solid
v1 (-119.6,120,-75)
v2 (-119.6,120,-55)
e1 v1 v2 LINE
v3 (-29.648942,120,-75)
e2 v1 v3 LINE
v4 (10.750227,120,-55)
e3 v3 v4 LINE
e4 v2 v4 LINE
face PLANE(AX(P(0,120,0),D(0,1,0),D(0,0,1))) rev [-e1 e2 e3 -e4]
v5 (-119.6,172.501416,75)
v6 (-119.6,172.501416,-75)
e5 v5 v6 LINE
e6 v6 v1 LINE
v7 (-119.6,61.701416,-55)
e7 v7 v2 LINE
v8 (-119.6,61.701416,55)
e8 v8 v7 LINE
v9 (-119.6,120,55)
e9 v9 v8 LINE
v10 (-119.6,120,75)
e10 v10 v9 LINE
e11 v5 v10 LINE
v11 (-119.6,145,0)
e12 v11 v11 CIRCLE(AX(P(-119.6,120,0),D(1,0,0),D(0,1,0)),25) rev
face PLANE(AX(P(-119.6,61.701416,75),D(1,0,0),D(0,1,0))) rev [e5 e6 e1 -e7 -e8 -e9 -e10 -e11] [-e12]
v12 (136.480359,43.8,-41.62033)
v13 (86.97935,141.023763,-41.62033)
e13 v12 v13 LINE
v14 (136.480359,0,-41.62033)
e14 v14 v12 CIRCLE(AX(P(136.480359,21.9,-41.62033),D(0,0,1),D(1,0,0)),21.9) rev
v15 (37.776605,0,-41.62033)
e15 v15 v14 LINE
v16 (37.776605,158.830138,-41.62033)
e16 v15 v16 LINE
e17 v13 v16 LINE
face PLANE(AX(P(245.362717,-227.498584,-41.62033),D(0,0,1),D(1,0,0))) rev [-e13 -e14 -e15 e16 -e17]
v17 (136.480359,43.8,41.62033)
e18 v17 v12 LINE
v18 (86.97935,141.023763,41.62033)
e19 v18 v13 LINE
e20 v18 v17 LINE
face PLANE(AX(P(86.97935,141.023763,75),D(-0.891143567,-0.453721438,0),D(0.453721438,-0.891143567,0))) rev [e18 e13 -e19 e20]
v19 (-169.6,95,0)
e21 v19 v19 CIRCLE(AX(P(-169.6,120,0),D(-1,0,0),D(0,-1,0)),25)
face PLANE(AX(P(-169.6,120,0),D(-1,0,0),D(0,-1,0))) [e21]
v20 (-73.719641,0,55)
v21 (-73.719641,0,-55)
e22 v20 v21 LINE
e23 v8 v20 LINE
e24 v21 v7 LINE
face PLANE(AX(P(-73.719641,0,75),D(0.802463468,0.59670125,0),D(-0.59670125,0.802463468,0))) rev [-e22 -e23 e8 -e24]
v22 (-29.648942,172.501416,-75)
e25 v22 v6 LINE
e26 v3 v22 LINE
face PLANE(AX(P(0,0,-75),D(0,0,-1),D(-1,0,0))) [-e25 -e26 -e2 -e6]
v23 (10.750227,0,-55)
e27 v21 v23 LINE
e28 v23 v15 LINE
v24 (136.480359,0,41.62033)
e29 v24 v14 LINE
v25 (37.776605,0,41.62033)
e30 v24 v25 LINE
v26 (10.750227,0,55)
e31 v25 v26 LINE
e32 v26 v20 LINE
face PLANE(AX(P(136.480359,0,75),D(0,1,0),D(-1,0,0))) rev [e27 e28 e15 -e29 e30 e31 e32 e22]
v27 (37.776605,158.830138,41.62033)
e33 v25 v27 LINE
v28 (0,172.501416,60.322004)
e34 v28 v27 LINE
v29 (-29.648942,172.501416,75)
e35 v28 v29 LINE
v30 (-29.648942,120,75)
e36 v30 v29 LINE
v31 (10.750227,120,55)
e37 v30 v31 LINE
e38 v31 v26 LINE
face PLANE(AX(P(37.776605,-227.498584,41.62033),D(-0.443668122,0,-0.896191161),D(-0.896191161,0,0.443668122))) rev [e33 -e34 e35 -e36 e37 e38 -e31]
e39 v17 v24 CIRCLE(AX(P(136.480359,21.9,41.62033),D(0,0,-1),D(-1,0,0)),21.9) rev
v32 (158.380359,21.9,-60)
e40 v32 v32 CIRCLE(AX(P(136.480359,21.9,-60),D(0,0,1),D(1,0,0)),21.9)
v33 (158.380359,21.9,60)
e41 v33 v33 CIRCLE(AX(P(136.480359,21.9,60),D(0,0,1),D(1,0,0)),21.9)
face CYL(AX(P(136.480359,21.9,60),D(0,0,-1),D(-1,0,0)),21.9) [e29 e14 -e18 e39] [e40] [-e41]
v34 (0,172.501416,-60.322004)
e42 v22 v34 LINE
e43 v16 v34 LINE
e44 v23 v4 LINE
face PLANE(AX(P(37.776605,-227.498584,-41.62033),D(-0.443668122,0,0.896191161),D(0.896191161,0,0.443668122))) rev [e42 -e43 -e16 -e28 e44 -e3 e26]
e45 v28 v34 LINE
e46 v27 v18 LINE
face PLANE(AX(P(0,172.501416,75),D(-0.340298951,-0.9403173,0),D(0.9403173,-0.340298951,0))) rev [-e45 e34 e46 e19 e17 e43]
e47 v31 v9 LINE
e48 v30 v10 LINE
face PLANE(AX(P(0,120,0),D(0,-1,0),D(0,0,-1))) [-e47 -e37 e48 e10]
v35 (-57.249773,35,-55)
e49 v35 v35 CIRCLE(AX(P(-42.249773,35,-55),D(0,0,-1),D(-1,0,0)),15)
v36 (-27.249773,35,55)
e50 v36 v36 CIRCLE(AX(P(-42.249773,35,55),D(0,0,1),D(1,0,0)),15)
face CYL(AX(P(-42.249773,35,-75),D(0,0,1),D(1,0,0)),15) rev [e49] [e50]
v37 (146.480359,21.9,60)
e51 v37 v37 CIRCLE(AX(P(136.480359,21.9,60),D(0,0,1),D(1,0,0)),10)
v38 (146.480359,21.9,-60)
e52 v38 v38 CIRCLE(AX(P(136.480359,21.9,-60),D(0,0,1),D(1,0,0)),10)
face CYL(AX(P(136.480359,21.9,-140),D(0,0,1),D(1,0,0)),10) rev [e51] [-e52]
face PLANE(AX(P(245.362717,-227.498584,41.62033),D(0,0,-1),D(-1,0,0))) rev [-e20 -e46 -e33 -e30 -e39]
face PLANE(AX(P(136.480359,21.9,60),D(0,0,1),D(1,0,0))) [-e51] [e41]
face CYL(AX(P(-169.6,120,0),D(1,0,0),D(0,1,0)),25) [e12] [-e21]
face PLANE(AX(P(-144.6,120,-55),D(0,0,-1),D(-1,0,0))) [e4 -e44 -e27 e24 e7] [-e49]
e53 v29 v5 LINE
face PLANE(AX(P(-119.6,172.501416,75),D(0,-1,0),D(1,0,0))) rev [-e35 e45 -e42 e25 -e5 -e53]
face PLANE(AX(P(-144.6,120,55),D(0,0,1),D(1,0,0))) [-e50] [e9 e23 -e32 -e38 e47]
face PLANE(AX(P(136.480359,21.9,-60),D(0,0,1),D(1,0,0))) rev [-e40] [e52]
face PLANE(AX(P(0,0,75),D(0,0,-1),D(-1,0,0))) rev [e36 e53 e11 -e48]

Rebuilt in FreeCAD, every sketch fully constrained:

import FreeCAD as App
import Part
import Sketcher
Q = App.Units.Quantity

doc = App.newDocument("Part")
params = doc.addObject("Spreadsheet::Sheet", "Params")
for row, (alias, value) in enumerate([
    ("sketch1_width", "119.6 mm"),
    ("sketch1_width2", "210.2 mm"),
    ("sketch1_height", "110.8 mm"),
    ("sketch1_height2", "43.8 mm"),
    ("sketch1_length", "109.1 mm"),
    ("pad1_length", "150 mm"),
    ("sketch2_width", "185.8 mm"),
    ("sketch2_height", "57.3 mm"),
    ("pocket1_length", "120 mm"),
    ("sketch3_width", "310.2 mm"),
    ("sketch3_height", "50.8 mm"),
    ("sketch3_length", "114.5 mm"),
    ("pocket2_length", "400 mm"),
    ("sketch4_diameter", "43.8 mm"),
    ("pad2_length", "120 mm"),
    ("sketch5_diameter", "20 mm"),
    ("pocket3_length", "200 mm"),
    ("sketch6_diameter", "30 mm"),
    ("sketch7_diameter", "50 mm"),
    ("pad3_length", "50 mm"),
], start=1):
    params.set(f"A{row}", alias)
    params.set(f"B{row}", "=" + value)
    params.setAlias(f"B{row}", alias)

body = doc.addObject("PartDesign::Body", "Body")

sketch1 = body.newObject("Sketcher::SketchObject", "Sketch")
sketch1.AttachmentSupport = (doc.getObject("XY_Plane"), [""])
sketch1.MapMode = "FlatFace"
sketch1.addGeometry([
    Part.LineSegment(App.Vector(0, 173, 0), App.Vector(-120, 173, 0)),
    Part.LineSegment(App.Vector(-120, 173, 0), App.Vector(-120, 62, 0)),
    Part.LineSegment(App.Vector(-120, 62, 0), App.Vector(-74, 0, 0)),
    Part.LineSegment(App.Vector(-74, 0, 0), App.Vector(136, 0, 0)),
    Part.LineSegment(App.Vector(136, 0, 0), App.Vector(136, 44, 0)),
    Part.LineSegment(App.Vector(136, 44, 0), App.Vector(87, 141, 0)),
    Part.LineSegment(App.Vector(87, 141, 0), App.Vector(0, 173, 0)),
], False)
sketch1.addConstraint([
    Sketcher.Constraint("Coincident", 0, 2, 1, 1),
    Sketcher.Constraint("Coincident", 1, 2, 2, 1),
    Sketcher.Constraint("Coincident", 2, 2, 3, 1),
    Sketcher.Constraint("Coincident", 3, 2, 4, 1),
    Sketcher.Constraint("Coincident", 4, 2, 5, 1),
    Sketcher.Constraint("Coincident", 5, 2, 6, 1),
    Sketcher.Constraint("Coincident", 6, 2, 0, 1),
    Sketcher.Constraint("Horizontal", 0),
    Sketcher.Constraint("Vertical", 1),
    Sketcher.Constraint("Horizontal", 3),
    Sketcher.Constraint("Vertical", 4),
    Sketcher.Constraint("PointOnObject", 2, 2, -1),
    Sketcher.Constraint("PointOnObject", 6, 2, -2),
    Sketcher.Constraint("DistanceX", 0, 2, 0, 1, Q("119.6 mm")),
    Sketcher.Constraint("DistanceX", 3, 1, 3, 2, Q("210.2 mm")),
    Sketcher.Constraint("DistanceY", 1, 2, 1, 1, Q("110.8 mm")),
    Sketcher.Constraint("DistanceY", 4, 1, 4, 2, Q("43.8 mm")),
    Sketcher.Constraint("Distance", 5, Q("109.1 mm")),
    Sketcher.Constraint("Distance", 6, Q("92.5 mm")),
    Sketcher.Constraint("Distance", 2, Q("76.89 mm")),
    Sketcher.Constraint("DistanceX", 2, 2, -1, 1, Q("73.719641 mm")),
])
sketch1.setExpression("Constraints[13]", "Params.sketch1_width")
sketch1.setExpression("Constraints[14]", "Params.sketch1_width2")
sketch1.setExpression("Constraints[15]", "Params.sketch1_height")
sketch1.setExpression("Constraints[16]", "Params.sketch1_height2")
sketch1.setExpression("Constraints[17]", "Params.sketch1_length")
pad1 = body.newObject("PartDesign::Pad", "Pad")
pad1.Profile = sketch1
pad1.setExpression("Length", "Params.pad1_length")
pad1.Midplane = True

sketch2 = body.newObject("Sketcher::SketchObject", "Sketch001")
sketch2.AttachmentSupport = (doc.getObject("XZ_Plane"), [""])
sketch2.MapMode = "FlatFace"
sketch2.addGeometry([
    Part.LineSegment(App.Vector(-145, -112, 0), App.Vector(-145, -55, 0)),
    Part.LineSegment(App.Vector(-145, -55, 0), App.Vector(41, -55, 0)),
    Part.LineSegment(App.Vector(41, -55, 0), App.Vector(41, -112, 0)),
    Part.LineSegment(App.Vector(41, -112, 0), App.Vector(-145, -112, 0)),
    Part.LineSegment(App.Vector(-145, 55, 0), App.Vector(-145, 112, 0)),
    Part.LineSegment(App.Vector(-145, 112, 0), App.Vector(41, 112, 0)),
    Part.LineSegment(App.Vector(41, 112, 0), App.Vector(41, 55, 0)),
    Part.LineSegment(App.Vector(41, 55, 0), App.Vector(-145, 55, 0)),
], False)
sketch2.addConstraint([
    Sketcher.Constraint("Coincident", 0, 2, 1, 1),
    Sketcher.Constraint("Coincident", 1, 2, 2, 1),
    Sketcher.Constraint("Coincident", 2, 2, 3, 1),
    Sketcher.Constraint("Coincident", 3, 2, 0, 1),
    Sketcher.Constraint("Coincident", 4, 2, 5, 1),
    Sketcher.Constraint("Coincident", 5, 2, 6, 1),
    Sketcher.Constraint("Coincident", 6, 2, 7, 1),
    Sketcher.Constraint("Coincident", 7, 2, 4, 1),
    Sketcher.Constraint("Vertical", 0),
    Sketcher.Constraint("Horizontal", 1),
    Sketcher.Constraint("Vertical", 2),
    Sketcher.Constraint("Horizontal", 3),
    Sketcher.Constraint("Vertical", 4),
    Sketcher.Constraint("Horizontal", 5),
    Sketcher.Constraint("Vertical", 6),
    Sketcher.Constraint("Horizontal", 7),
    Sketcher.Constraint("Symmetric", 3, 2, 4, 2, -1),
    Sketcher.Constraint("Symmetric", 1, 2, 6, 2, -1),
    Sketcher.Constraint("DistanceX", 1, 1, 1, 2, Q("185.8 mm")),
    Sketcher.Constraint("DistanceY", 0, 1, 0, 2, Q("57.3 mm")),
    Sketcher.Constraint("DistanceY", 0, 2, -1, 1, Q("55 mm")),
    Sketcher.Constraint("DistanceX", 0, 2, -1, 1, Q("144.6 mm")),
])
sketch2.setExpression("Constraints[18]", "Params.sketch2_width")
sketch2.setExpression("Constraints[19]", "Params.sketch2_height")
pocket1 = body.newObject("PartDesign::Pocket", "Pocket")
pocket1.Profile = sketch2
pocket1.setExpression("Length", "Params.pocket1_length")

sketch3 = body.newObject("Sketcher::SketchObject", "Sketch002")
sketch3.AttachmentSupport = (doc.getObject("XZ_Plane"), [""])
sketch3.MapMode = "FlatFace"
sketch3.AttachmentOffset = App.Placement(App.Vector(0, 0, -172.501416), App.Rotation())
sketch3.addGeometry([
    Part.LineSegment(App.Vector(245, -92, 0), App.Vector(-65, -92, 0)),
    Part.LineSegment(App.Vector(-65, -92, 0), App.Vector(38, -42, 0)),
    Part.LineSegment(App.Vector(38, -42, 0), App.Vector(245, -42, 0)),
    Part.LineSegment(App.Vector(245, -42, 0), App.Vector(245, -92, 0)),
    Part.LineSegment(App.Vector(38, 42, 0), App.Vector(-65, 92, 0)),
    Part.LineSegment(App.Vector(-65, 92, 0), App.Vector(245, 92, 0)),
    Part.LineSegment(App.Vector(245, 92, 0), App.Vector(245, 42, 0)),
    Part.LineSegment(App.Vector(245, 42, 0), App.Vector(38, 42, 0)),
], False)
sketch3.addConstraint([
    Sketcher.Constraint("Coincident", 0, 2, 1, 1),
    Sketcher.Constraint("Coincident", 1, 2, 2, 1),
    Sketcher.Constraint("Coincident", 2, 2, 3, 1),
    Sketcher.Constraint("Coincident", 3, 2, 0, 1),
    Sketcher.Constraint("Coincident", 4, 2, 5, 1),
    Sketcher.Constraint("Coincident", 5, 2, 6, 1),
    Sketcher.Constraint("Coincident", 6, 2, 7, 1),
    Sketcher.Constraint("Coincident", 7, 2, 4, 1),
    Sketcher.Constraint("Horizontal", 0),
    Sketcher.Constraint("Horizontal", 2),
    Sketcher.Constraint("Vertical", 3),
    Sketcher.Constraint("Horizontal", 5),
    Sketcher.Constraint("Vertical", 6),
    Sketcher.Constraint("Horizontal", 7),
    Sketcher.Constraint("Symmetric", 0, 2, 4, 2, -1),
    Sketcher.Constraint("Symmetric", 2, 2, 6, 2, -1),
    Sketcher.Constraint("Vertical", 1, 2, 7, 2),
    Sketcher.Constraint("DistanceX", 0, 2, 0, 1, Q("310.2 mm")),
    Sketcher.Constraint("DistanceY", 3, 2, 3, 1, Q("50.8 mm")),
    Sketcher.Constraint("Distance", 1, Q("114.5 mm")),
    Sketcher.Constraint("DistanceY", 0, 2, -1, 1, Q("92.42033 mm")),
    Sketcher.Constraint("DistanceX", 0, 2, -1, 1, Q("64.837283 mm")),
])
sketch3.setExpression("Constraints[17]", "Params.sketch3_width")
sketch3.setExpression("Constraints[18]", "Params.sketch3_height")
sketch3.setExpression("Constraints[19]", "Params.sketch3_length")
pocket2 = body.newObject("PartDesign::Pocket", "Pocket001")
pocket2.Profile = sketch3
pocket2.setExpression("Length", "Params.pocket2_length")
pocket2.Reversed = True

sketch4 = body.newObject("Sketcher::SketchObject", "Sketch003")
sketch4.AttachmentSupport = (doc.getObject("XY_Plane"), [""])
sketch4.MapMode = "FlatFace"
sketch4.addGeometry(Part.Circle(App.Vector(136, 22, 0), App.Vector(0, 0, 1), 22), False)
sketch4.addConstraint([
    Sketcher.Constraint("Diameter", 0, Q("43.8 mm")),
    Sketcher.Constraint("DistanceY", -1, 1, 0, 3, Q("21.9 mm")),
    Sketcher.Constraint("DistanceX", -1, 1, 0, 3, Q("136.480359 mm")),
])
sketch4.setExpression("Constraints[0]", "Params.sketch4_diameter")
pad2 = body.newObject("PartDesign::Pad", "Pad001")
pad2.Profile = sketch4
pad2.setExpression("Length", "Params.pad2_length")
pad2.Midplane = True

sketch5 = body.newObject("Sketcher::SketchObject", "Sketch004")
sketch5.AttachmentSupport = (doc.getObject("XY_Plane"), [""])
sketch5.MapMode = "FlatFace"
sketch5.AttachmentOffset = App.Placement(App.Vector(0, 0, 60), App.Rotation())
sketch5.addGeometry(Part.Circle(App.Vector(136, 22, 0), App.Vector(0, 0, 1), 10), False)
sketch5.addConstraint([
    Sketcher.Constraint("Diameter", 0, Q("20 mm")),
    Sketcher.Constraint("DistanceY", -1, 1, 0, 3, Q("21.9 mm")),
    Sketcher.Constraint("DistanceX", -1, 1, 0, 3, Q("136.480359 mm")),
])
sketch5.setExpression("Constraints[0]", "Params.sketch5_diameter")
pocket3 = body.newObject("PartDesign::Pocket", "Pocket002")
pocket3.Profile = sketch5
pocket3.setExpression("Length", "Params.pocket3_length")

sketch6 = body.newObject("Sketcher::SketchObject", "Sketch005")
sketch6.AttachmentSupport = (doc.getObject("XY_Plane"), [""])
sketch6.MapMode = "FlatFace"
sketch6.AttachmentOffset = App.Placement(App.Vector(0, 0, 55), App.Rotation())
sketch6.addGeometry(Part.Circle(App.Vector(-42, 35, 0), App.Vector(0, 0, 1), 15), False)
sketch6.addConstraint([
    Sketcher.Constraint("Diameter", 0, Q("30 mm")),
    Sketcher.Constraint("DistanceY", -1, 1, 0, 3, Q("35 mm")),
    Sketcher.Constraint("DistanceX", 0, 3, -1, 1, Q("42.249773 mm")),
])
sketch6.setExpression("Constraints[0]", "Params.sketch6_diameter")
pocket4 = body.newObject("PartDesign::Pocket", "Pocket003")
pocket4.Profile = sketch6
pocket4.Type = "ThroughAll"
pocket4.Midplane = True

sketch7 = body.newObject("Sketcher::SketchObject", "Sketch006")
sketch7.AttachmentSupport = (doc.getObject("YZ_Plane"), [""])
sketch7.MapMode = "FlatFace"
sketch7.AttachmentOffset = App.Placement(App.Vector(0, 0, -119.6), App.Rotation())
sketch7.addGeometry(Part.Circle(App.Vector(120, 0, 0), App.Vector(0, 0, 1), 25), False)
sketch7.addConstraint([
    Sketcher.Constraint("PointOnObject", 0, 3, -1),
    Sketcher.Constraint("Diameter", 0, Q("50 mm")),
    Sketcher.Constraint("DistanceX", -1, 1, 0, 3, Q("120 mm")),
])
sketch7.setExpression("Constraints[1]", "Params.sketch7_diameter")
pad3 = body.newObject("PartDesign::Pad", "Pad002")
pad3.Profile = sketch7
pad3.setExpression("Length", "Params.pad3_length")
pad3.Reversed = True

doc.recompute()
